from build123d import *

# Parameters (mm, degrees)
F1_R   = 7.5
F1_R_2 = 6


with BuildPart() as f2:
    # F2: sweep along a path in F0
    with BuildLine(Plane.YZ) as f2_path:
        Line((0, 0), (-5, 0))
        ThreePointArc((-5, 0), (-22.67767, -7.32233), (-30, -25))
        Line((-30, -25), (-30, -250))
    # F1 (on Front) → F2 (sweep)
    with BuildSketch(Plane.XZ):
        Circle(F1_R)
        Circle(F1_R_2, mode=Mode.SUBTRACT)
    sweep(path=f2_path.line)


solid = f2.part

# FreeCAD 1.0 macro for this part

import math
import FreeCAD as App
import Part
import Sketcher
from FreeCAD import Vector
Q = App.Units.Quantity

doc = App.newDocument("Part")
params = doc.addObject("Spreadsheet::Sheet", "Params")
for row, (alias, value) in enumerate([
    ("sketch1_diameter", "15 mm"),
    ("sketch1_diameter2", "12 mm"),
    ("sketch2_radius", "24.999998 mm"),
    ("sketch2_width", "5 mm"),
    ("sketch2_height", "225 mm"),
], start=1):
    params.set(f"A{row}", alias)
    params.set(f"B{row}", "=" + value)
    params.setAlias(f"B{row}", alias)

body = doc.addObject("PartDesign::Body", "Body")

sketch1 = body.newObject("Sketcher::SketchObject", "Sketch")
sketch1.AttachmentSupport = (doc.getObject("XZ_Plane"), [""])
sketch1.MapMode = "FlatFace"
sketch1.addGeometry(Part.Circle(Vector(0, 0, 0), Vector(0, 0, 1), 8), False)
sketch1.addGeometry(Part.Circle(Vector(0, 0, 0), Vector(0, 0, 1), 6), False)
sketch1.addConstraint(Sketcher.Constraint("Coincident", 0, 3, -1, 1))
sketch1.addConstraint(Sketcher.Constraint("Coincident", 1, 3, -1, 1))
sketch1.addConstraint(Sketcher.Constraint("Diameter", 0, Q("15 mm")))
sketch1.addConstraint(Sketcher.Constraint("Diameter", 1, Q("12 mm")))
sketch1.setExpression("Constraints[2]", "Params.sketch1_diameter")
sketch1.setExpression("Constraints[3]", "Params.sketch1_diameter2")

sketch2 = body.newObject("Sketcher::SketchObject", "Sketch001")
sketch2.AttachmentSupport = (doc.getObject("YZ_Plane"), [""])
sketch2.MapMode = "FlatFace"
sketch2.addGeometry(Part.LineSegment(Vector(0, 0, 0), Vector(-5, 0, 0)), False)
sketch2.addGeometry(Part.ArcOfCircle(Part.Circle(Vector(-5, -25, 0), Vector(0, 0, 1), 25), math.radians(90), math.radians(180)), False)
sketch2.addGeometry(Part.LineSegment(Vector(-30, -25, 0), Vector(-30, -250, 0)), False)
sketch2.addConstraint(Sketcher.Constraint("Tangent", 0, 2, 1, 1))
sketch2.addConstraint(Sketcher.Constraint("Tangent", 1, 2, 2, 1))
sketch2.addConstraint(Sketcher.Constraint("Horizontal", 0))
sketch2.addConstraint(Sketcher.Constraint("Vertical", 2))
sketch2.addConstraint(Sketcher.Constraint("Coincident", 0, 1, -1, 1))
sketch2.addConstraint(Sketcher.Constraint("Radius", 1, Q("24.999998 mm")))
sketch2.addConstraint(Sketcher.Constraint("DistanceX", 0, 2, 0, 1, Q("5 mm")))
sketch2.addConstraint(Sketcher.Constraint("DistanceY", 2, 2, 2, 1, Q("225 mm")))
sketch2.setExpression("Constraints[5]", "Params.sketch2_radius")
sketch2.setExpression("Constraints[6]", "Params.sketch2_width")
sketch2.setExpression("Constraints[7]", "Params.sketch2_height")
doc.recompute()

additivepipe = body.newObject("PartDesign::AdditivePipe", "AdditivePipe")
additivepipe.Profile = sketch1
additivepipe.Spine = (sketch2, ["Edge1", "Edge2", "Edge3"])

doc.recompute()
